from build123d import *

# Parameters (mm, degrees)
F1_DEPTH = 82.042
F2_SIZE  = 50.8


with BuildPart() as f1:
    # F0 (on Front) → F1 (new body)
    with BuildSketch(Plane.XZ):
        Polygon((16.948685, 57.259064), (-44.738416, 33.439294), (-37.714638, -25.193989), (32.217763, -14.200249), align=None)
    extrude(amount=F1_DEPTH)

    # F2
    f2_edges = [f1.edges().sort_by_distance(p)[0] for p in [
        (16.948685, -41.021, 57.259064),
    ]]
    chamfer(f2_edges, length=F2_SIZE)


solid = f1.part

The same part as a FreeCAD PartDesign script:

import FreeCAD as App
import Part
import Sketcher

V = App.Vector
Q = App.Units.Quantity


def edges_at(feature, points):
    """Names of the edges that pass closest to the given points."""
    edges = feature.Shape.Edges
    near = lambda p: min(range(len(edges)), key=lambda i: edges[i].distToShape(Part.Vertex(*p))[0])
    return sorted({f"Edge{near(p) + 1}" for p in points})


def add_polygon(sketch, points):
    """Adds a closed chain of lines whose ends are joined by coincident constraints."""
    first, n = sketch.GeometryCount, len(points)
    for a, b in zip(points, points[1:] + points[:1]):
        sketch.addGeometry(Part.LineSegment(App.Vector(*a, 0), App.Vector(*b, 0)), False)
    for i in range(n):
        sketch.addConstraint(Sketcher.Constraint("Coincident", first + i, 2, first + (i + 1) % n, 1))

doc = App.newDocument("Part")
body = doc.addObject("PartDesign::Body", "Body")

# Sketch on XZ plane
sketch1 = body.newObject("Sketcher::SketchObject", "Sketch")
sketch1.AttachmentSupport = (doc.getObject("XZ_Plane"), [""])
sketch1.MapMode = "FlatFace"
add_polygon(sketch1, [(16.948685, 57.259064), (-44.738416, 33.439294), (-37.714638, -25.193989), (32.217763, -14.200249)])  # lines 0-3
sketch1.addConstraint([
    Sketcher.Constraint("DistanceX", 1, 2, 2, 2, Q("69.932401 mm")),
    Sketcher.Constraint("DistanceX", 0, 2, 3, 2, Q("61.687101 mm")),
    Sketcher.Constraint("Distance", 0, Q("66.126242 mm")),
    Sketcher.Constraint("Distance", 1, Q("59.052479 mm")),
    Sketcher.Constraint("DistanceY", 1, 2, -1, 1, Q("25.193989 mm")),
    Sketcher.Constraint("DistanceY", 2, 2, -1, 1, Q("14.200249 mm")),
    Sketcher.Constraint("DistanceX", 0, 2, 2, 2, Q("76.956179 mm")),
    Sketcher.Constraint("DistanceX", 0, 2, -1, 1, Q("44.738416 mm")),
])
pad1 = body.newObject("PartDesign::Pad", "Pad")
pad1.Profile = sketch1
pad1.Length = Q("3.23 in")
doc.recompute()

chamfer = body.newObject("PartDesign::Chamfer", "Chamfer")
chamfer.Base = (pad1, edges_at(pad1, [(16.949, -41.021, 57.259)]))
chamfer.Size = Q("2 in")

doc.recompute()
